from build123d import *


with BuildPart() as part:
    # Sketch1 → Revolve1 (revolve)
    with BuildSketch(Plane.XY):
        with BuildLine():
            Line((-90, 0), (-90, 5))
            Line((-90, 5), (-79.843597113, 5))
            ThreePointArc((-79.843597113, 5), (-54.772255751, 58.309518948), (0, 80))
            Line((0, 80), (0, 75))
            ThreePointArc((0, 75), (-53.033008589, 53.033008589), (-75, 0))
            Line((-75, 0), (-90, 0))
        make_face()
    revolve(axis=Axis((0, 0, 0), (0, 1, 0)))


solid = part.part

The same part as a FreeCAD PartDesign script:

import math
import FreeCAD as App
import Part
import Sketcher

V = App.Vector
Q = App.Units.Quantity

doc = App.newDocument("Part")
body = doc.addObject("PartDesign::Body", "Body")

sketch1 = body.newObject("Sketcher::SketchObject", "Sketch")
sketch1.AttachmentSupport = (doc.getObject("XY_Plane"), [""])
sketch1.MapMode = "FlatFace"
sketch1.addGeometry([
    Part.LineSegment(V(-90, 5, 0), V(-90, 0, 0)),
    Part.LineSegment(V(-90, 0, 0), V(-75, 0, 0)),
    Part.ArcOfCircle(Part.Circle(V(0, 0, 0), V(0, 0, 1), 75), math.radians(90), math.radians(180)),
    Part.LineSegment(V(0, 75, 0), V(0, 80, 0)),
    Part.ArcOfCircle(Part.Circle(V(0, 0, 0), V(0, 0, 1), 80), math.radians(90), math.radians(176.416678)),
    Part.LineSegment(V(-79.843597, 5, 0), V(-90, 5, 0)),
], False)
sketch1.addConstraint([
    Sketcher.Constraint("Coincident", 0, 2, 1, 1),
    Sketcher.Constraint("Coincident", 1, 2, 2, 2),
    Sketcher.Constraint("Coincident", 2, 1, 3, 1),
    Sketcher.Constraint("Coincident", 3, 2, 4, 1),
    Sketcher.Constraint("Coincident", 4, 2, 5, 1),
    Sketcher.Constraint("Coincident", 5, 2, 0, 1),
    Sketcher.Constraint("Vertical", 0),
    Sketcher.Constraint("Horizontal", 1),
    Sketcher.Constraint("Vertical", 3),
    Sketcher.Constraint("Horizontal", 5),
    Sketcher.Constraint("Coincident", 2, 3, -1, 1),
    Sketcher.Constraint("Coincident", 4, 3, -1, 1),
    Sketcher.Constraint("PointOnObject", 0, 2, -1),
    Sketcher.Constraint("PointOnObject", 2, 1, -2),
    Sketcher.Constraint("Equal", 0, 3),
    Sketcher.Constraint("Radius", 2, Q("75 mm")),
    Sketcher.Constraint("Radius", 4, Q("80 mm")),
    Sketcher.Constraint("DistanceX", 1, 1, 1, 2, Q("15 mm")),
])
revolution = body.newObject("PartDesign::Revolution", "Revolution")
revolution.Profile = sketch1
revolution.ReferenceAxis = (sketch1, ["V_Axis"])
revolution.Angle = 360

doc.recompute()
